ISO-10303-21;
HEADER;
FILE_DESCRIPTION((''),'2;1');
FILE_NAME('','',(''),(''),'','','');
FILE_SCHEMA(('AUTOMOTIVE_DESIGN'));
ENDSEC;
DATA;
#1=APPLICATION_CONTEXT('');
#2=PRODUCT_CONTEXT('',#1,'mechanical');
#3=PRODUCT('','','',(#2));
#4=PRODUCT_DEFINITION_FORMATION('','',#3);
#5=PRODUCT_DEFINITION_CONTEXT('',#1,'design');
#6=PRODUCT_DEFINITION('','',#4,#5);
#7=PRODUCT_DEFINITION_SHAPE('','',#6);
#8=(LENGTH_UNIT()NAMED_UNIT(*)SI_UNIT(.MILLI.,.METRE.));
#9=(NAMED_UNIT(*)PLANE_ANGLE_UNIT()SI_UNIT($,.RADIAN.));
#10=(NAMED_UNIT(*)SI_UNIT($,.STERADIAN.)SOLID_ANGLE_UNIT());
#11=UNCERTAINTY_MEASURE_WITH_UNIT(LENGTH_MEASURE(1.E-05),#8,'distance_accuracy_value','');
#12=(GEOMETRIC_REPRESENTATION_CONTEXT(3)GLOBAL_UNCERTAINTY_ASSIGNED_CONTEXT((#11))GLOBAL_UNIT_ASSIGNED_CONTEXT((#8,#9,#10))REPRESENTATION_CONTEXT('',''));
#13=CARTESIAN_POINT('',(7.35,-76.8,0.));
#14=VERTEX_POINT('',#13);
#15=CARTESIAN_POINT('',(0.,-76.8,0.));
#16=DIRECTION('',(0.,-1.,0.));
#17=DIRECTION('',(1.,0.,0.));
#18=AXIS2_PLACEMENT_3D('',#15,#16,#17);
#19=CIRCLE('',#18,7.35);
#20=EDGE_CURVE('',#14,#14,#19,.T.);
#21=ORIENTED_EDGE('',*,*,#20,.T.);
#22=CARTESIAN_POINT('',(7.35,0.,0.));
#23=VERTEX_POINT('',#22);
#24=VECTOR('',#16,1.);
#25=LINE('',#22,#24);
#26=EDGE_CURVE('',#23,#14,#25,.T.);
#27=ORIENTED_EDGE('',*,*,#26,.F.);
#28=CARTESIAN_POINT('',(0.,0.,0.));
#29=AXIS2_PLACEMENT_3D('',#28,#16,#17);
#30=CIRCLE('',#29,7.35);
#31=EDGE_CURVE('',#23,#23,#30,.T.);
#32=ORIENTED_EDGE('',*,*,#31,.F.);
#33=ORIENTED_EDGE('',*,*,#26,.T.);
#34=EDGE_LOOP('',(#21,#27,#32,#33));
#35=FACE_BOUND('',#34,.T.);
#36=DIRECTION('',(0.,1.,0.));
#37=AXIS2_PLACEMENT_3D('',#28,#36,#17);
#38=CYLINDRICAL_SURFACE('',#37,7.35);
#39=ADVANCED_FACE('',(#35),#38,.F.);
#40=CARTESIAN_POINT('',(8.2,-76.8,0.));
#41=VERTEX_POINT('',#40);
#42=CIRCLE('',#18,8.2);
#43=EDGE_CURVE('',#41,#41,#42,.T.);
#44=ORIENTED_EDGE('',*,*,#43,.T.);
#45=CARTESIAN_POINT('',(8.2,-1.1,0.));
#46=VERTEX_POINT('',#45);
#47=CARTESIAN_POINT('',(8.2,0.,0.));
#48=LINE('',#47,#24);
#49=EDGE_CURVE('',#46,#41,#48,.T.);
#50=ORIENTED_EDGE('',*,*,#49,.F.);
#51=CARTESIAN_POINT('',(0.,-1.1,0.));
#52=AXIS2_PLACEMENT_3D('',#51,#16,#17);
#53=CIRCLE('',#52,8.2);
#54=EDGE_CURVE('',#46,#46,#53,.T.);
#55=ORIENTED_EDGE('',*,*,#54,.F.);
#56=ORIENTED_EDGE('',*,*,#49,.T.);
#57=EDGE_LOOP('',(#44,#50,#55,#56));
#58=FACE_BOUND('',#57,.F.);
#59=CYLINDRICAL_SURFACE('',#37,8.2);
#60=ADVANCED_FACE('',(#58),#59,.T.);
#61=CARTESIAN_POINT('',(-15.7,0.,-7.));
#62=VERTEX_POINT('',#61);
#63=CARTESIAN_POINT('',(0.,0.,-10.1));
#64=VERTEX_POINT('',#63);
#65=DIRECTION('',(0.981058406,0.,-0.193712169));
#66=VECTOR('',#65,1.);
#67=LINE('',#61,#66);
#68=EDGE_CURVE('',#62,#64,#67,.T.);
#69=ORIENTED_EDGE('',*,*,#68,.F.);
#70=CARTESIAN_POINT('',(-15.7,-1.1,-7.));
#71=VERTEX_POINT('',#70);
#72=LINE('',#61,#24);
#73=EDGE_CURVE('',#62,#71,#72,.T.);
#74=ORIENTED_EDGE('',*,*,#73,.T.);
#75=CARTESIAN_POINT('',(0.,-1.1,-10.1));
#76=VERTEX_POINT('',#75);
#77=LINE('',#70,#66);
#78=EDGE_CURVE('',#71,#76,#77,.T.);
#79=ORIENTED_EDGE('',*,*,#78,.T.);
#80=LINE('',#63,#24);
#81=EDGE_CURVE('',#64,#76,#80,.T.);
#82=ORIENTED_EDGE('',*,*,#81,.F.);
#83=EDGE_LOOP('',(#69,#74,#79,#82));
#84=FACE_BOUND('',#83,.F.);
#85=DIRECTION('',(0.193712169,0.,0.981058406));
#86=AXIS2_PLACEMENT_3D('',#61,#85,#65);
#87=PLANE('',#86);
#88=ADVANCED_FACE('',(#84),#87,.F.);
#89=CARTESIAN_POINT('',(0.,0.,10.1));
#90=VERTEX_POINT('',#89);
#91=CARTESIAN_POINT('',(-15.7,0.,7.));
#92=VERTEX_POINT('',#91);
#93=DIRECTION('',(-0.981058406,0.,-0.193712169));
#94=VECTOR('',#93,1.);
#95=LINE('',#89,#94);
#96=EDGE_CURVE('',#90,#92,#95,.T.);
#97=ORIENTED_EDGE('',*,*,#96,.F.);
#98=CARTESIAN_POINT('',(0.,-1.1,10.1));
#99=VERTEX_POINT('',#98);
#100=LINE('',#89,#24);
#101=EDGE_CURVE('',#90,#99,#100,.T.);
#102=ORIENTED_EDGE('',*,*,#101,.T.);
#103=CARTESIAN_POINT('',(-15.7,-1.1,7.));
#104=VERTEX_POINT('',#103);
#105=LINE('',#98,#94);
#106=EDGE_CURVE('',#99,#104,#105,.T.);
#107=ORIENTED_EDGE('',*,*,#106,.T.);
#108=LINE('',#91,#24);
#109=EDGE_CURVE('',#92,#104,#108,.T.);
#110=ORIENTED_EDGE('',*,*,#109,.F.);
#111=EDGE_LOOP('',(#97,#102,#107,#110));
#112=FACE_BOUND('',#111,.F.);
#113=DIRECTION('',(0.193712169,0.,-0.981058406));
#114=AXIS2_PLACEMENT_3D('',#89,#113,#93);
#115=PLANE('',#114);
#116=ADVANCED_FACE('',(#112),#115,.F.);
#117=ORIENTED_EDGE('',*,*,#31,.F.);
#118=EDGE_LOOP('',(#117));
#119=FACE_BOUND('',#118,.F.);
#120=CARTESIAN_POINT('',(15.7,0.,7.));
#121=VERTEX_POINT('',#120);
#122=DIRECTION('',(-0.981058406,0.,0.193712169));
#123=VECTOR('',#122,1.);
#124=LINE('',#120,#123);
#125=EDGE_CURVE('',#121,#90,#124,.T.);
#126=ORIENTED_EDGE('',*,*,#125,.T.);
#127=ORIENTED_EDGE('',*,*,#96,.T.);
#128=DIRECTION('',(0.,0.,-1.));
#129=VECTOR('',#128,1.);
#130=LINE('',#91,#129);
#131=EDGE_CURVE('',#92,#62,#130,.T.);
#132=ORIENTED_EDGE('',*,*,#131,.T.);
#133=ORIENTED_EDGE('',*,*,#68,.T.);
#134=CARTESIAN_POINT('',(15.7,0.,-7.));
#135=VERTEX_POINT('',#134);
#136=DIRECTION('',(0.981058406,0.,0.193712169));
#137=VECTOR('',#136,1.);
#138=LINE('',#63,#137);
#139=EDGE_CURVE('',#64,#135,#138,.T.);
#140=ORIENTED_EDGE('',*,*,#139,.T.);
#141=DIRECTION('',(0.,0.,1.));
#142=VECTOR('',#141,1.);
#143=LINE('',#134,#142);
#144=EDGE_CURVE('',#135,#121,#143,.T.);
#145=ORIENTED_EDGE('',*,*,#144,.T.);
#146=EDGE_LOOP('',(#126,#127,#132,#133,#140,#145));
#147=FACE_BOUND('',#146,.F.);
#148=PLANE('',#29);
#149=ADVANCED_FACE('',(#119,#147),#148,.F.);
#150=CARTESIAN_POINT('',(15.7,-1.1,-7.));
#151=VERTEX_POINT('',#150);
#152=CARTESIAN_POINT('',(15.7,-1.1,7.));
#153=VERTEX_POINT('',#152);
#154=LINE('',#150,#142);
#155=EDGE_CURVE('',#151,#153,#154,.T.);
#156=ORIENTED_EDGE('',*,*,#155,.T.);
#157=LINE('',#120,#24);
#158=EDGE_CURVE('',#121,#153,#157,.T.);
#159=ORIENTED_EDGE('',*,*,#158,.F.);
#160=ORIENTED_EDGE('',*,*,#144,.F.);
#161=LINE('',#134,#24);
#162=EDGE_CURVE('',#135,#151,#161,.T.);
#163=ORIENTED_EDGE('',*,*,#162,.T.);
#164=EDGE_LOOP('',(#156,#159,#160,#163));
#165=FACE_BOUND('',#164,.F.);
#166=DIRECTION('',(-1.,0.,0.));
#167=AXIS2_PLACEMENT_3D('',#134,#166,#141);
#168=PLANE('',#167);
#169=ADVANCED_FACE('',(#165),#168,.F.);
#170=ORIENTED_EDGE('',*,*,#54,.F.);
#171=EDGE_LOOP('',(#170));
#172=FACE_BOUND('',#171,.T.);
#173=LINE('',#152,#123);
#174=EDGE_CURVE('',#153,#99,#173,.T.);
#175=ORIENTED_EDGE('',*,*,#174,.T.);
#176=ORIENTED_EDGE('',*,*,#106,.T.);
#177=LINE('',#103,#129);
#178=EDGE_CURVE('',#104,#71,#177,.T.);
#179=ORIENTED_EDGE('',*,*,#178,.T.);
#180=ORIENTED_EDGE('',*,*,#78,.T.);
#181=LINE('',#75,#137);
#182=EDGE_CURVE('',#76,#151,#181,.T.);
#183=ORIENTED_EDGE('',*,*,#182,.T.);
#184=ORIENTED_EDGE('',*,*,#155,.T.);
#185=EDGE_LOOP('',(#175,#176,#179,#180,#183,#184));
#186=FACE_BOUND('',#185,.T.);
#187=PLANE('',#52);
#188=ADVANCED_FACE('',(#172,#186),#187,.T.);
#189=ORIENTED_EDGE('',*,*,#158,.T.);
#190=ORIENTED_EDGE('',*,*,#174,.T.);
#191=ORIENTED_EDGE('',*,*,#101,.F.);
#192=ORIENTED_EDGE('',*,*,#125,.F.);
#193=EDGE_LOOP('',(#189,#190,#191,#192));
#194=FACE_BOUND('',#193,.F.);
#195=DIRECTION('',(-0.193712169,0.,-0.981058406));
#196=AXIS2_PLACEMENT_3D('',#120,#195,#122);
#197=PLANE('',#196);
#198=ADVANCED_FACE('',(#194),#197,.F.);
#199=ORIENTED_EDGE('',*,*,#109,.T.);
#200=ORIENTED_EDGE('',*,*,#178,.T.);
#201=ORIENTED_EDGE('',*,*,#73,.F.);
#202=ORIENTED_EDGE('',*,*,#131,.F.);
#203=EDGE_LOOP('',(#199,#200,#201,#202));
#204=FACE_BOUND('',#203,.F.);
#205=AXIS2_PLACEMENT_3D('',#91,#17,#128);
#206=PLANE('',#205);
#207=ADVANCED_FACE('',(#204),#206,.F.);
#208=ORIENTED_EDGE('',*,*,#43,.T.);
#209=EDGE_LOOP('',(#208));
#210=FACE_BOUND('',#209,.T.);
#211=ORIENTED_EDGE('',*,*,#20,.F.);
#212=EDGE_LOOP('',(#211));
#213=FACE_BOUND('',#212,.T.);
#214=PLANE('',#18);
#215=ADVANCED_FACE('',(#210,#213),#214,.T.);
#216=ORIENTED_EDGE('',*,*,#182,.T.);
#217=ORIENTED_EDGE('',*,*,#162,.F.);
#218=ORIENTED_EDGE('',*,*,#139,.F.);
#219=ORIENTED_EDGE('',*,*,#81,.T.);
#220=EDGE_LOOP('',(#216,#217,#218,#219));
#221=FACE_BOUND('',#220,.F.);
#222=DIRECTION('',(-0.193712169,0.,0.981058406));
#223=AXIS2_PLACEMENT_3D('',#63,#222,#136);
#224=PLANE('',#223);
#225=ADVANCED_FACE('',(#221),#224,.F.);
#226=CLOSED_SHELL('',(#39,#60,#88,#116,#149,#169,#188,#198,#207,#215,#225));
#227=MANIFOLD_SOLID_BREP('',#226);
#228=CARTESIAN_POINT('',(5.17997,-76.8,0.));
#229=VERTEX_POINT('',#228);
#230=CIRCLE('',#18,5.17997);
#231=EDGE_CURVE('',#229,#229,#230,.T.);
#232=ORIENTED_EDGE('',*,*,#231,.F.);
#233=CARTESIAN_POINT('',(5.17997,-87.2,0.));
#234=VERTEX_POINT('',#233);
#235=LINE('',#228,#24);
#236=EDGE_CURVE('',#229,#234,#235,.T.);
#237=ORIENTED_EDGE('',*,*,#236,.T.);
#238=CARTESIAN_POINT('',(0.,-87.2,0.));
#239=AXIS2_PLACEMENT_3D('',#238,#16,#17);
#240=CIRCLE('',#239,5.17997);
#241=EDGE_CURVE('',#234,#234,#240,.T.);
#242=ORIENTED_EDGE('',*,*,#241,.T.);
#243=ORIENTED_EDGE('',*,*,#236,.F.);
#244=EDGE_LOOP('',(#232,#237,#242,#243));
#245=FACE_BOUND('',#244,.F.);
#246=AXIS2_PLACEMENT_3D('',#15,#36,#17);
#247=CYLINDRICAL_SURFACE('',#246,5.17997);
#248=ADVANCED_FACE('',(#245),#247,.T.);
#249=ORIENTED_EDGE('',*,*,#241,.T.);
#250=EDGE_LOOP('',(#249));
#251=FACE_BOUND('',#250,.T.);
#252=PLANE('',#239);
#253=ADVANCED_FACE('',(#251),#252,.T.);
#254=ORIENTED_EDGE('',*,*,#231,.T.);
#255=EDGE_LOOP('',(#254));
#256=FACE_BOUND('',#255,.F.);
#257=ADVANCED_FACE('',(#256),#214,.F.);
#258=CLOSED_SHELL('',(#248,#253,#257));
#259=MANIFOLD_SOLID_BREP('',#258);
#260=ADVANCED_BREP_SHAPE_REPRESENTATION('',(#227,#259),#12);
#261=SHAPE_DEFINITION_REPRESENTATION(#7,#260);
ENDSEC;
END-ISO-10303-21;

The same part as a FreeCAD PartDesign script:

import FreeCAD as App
import Part
import Sketcher
Q = App.Units.Quantity

doc = App.newDocument("Part")
params = doc.addObject("Spreadsheet::Sheet", "Params")
for row, (alias, value) in enumerate([
    ("sketch1_diameter", "16.4 mm"),
    ("sketch1_diameter2", "14.7 mm"),
    ("pad1_length", "76.8 mm"),
    ("sketch2_diameter", "16.4 mm"),
    ("sketch2_height", "14 mm"),
    ("pad2_length", "1.1 mm"),
    ("pad3_length", "10.4 mm"),
], start=1):
    params.set(f"A{row}", alias)
    params.set(f"B{row}", "=" + value)
    params.setAlias(f"B{row}", alias)

body = doc.addObject("PartDesign::Body", "Body")

sketch1 = body.newObject("Sketcher::SketchObject", "Sketch")
sketch1.AttachmentSupport = (doc.getObject("XZ_Plane"), [""])
sketch1.MapMode = "FlatFace"
sketch1.addGeometry([
    Part.Circle(App.Vector(0, 0, 0), App.Vector(0, 0, 1), 8),
    Part.Circle(App.Vector(0, 0, 0), App.Vector(0, 0, 1), 7),
], False)
sketch1.addConstraint([
    Sketcher.Constraint("Coincident", 0, 3, -1, 1),
    Sketcher.Constraint("Coincident", 1, 3, -1, 1),
    Sketcher.Constraint("Diameter", 0, Q("16.4 mm")),
    Sketcher.Constraint("Diameter", 1, Q("14.7 mm")),
])
sketch1.setExpression("Constraints[2]", "Params.sketch1_diameter")
sketch1.setExpression("Constraints[3]", "Params.sketch1_diameter2")
pad1 = body.newObject("PartDesign::Pad", "Pad")
pad1.Profile = sketch1
pad1.setExpression("Length", "Params.pad1_length")

sketch2 = body.newObject("Sketcher::SketchObject", "Sketch001")
sketch2.AttachmentSupport = (doc.getObject("XZ_Plane"), [""])
sketch2.MapMode = "FlatFace"
sketch2.addGeometry([
    Part.LineSegment(App.Vector(16, 7, 0), App.Vector(0, 10, 0)),
    Part.LineSegment(App.Vector(0, 10, 0), App.Vector(-16, 7, 0)),
    Part.LineSegment(App.Vector(-16, 7, 0), App.Vector(-16, -7, 0)),
    Part.LineSegment(App.Vector(-16, -7, 0), App.Vector(0, -10, 0)),
    Part.LineSegment(App.Vector(0, -10, 0), App.Vector(16, -7, 0)),
    Part.LineSegment(App.Vector(16, -7, 0), App.Vector(16, 7, 0)),
    Part.Circle(App.Vector(0, 0, 0), App.Vector(0, 0, 1), 8),
], False)
sketch2.addConstraint([
    Sketcher.Constraint("Coincident", 0, 2, 1, 1),
    Sketcher.Constraint("Coincident", 1, 2, 2, 1),
    Sketcher.Constraint("Coincident", 2, 2, 3, 1),
    Sketcher.Constraint("Coincident", 3, 2, 4, 1),
    Sketcher.Constraint("Coincident", 4, 2, 5, 1),
    Sketcher.Constraint("Coincident", 5, 2, 0, 1),
    Sketcher.Constraint("Vertical", 2),
    Sketcher.Constraint("Vertical", 5),
    Sketcher.Constraint("Coincident", 6, 3, -1, 1),
    Sketcher.Constraint("Symmetric", 0, 2, 3, 2, -1, 1),
    Sketcher.Constraint("Symmetric", 1, 2, 4, 2, -1, 1),
    Sketcher.Constraint("PointOnObject", 0, 2, -2),
    Sketcher.Constraint("Parallel", 0, 3),
    Sketcher.Constraint("Horizontal", 2, 2, 4, 2),
    Sketcher.Constraint("Diameter", 6, Q("16.4 mm")),
    Sketcher.Constraint("DistanceY", 2, 2, 2, 1, Q("14 mm")),
    Sketcher.Constraint("DistanceY", -1, 1, 0, 2, Q("10.1 mm")),
    Sketcher.Constraint("DistanceX", 1, 2, -1, 1, Q("15.7 mm")),
])
sketch2.setExpression("Constraints[14]", "Params.sketch2_diameter")
sketch2.setExpression("Constraints[15]", "Params.sketch2_height")
pad2 = body.newObject("PartDesign::Pad", "Pad001")
pad2.Profile = sketch2
pad2.setExpression("Length", "Params.pad2_length")
body2 = doc.addObject("PartDesign::Body", "Body001")

sketch3 = body2.newObject("Sketcher::SketchObject", "Sketch002")
sketch3.AttachmentSupport = (doc.getObject("XZ_Plane001"), [""])
sketch3.MapMode = "FlatFace"
sketch3.AttachmentOffset = App.Placement(App.Vector(0, 0, 76.8), App.Rotation())
sketch3.addGeometry(Part.Circle(App.Vector(0, 0, 0), App.Vector(0, 0, 1), 5), False)
sketch3.addConstraint([
    Sketcher.Constraint("Coincident", 0, 3, -1, 1),
    Sketcher.Constraint("Diameter", 0, Q("10.35994 mm")),
])
pad3 = body2.newObject("PartDesign::Pad", "Pad002")
pad3.Profile = sketch3
pad3.setExpression("Length", "Params.pad3_length")

doc.recompute()
